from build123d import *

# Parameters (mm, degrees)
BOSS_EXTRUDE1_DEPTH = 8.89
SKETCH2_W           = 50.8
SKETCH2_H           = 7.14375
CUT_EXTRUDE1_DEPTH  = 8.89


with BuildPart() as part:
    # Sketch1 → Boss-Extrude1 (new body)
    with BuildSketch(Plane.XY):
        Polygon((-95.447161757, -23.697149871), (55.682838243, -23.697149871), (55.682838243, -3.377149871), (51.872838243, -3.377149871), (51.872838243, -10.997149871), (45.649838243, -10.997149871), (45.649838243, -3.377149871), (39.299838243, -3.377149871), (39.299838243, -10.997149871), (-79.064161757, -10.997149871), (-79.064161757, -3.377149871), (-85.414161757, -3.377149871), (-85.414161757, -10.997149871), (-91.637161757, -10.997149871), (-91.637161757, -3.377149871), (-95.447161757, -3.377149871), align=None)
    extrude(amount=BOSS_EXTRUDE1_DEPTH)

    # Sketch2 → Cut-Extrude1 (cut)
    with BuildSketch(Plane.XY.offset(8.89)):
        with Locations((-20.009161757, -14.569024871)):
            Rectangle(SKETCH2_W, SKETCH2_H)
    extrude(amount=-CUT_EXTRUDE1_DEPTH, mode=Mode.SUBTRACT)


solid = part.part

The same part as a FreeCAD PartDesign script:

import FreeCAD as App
import Part
import Sketcher

V = App.Vector
Q = App.Units.Quantity

doc = App.newDocument("Part")
params = doc.addObject("Spreadsheet::Sheet", "Params")
for row, (alias, value) in enumerate([
    ("sketch1_height", "0.8 in"),
    ("sketch1_height2", "0.3 in"),
    ("sketch1_width", "5.95 in"),
    ("sketch1_width2", "0.15 in"),
    ("sketch1_width3", "0.25 in"),
    ("pad1_length", "0.35 in"),
    ("sketch2_width", "2 in"),
    ("sketch2_height", "0.28125 in"),
    ("pocket1_length", "0.35 in"),
], start=1):
    params.set(f"A{row}", alias)
    params.set(f"B{row}", "=" + value)
    params.setAlias(f"B{row}", alias)

body = doc.addObject("PartDesign::Body", "Body")

# Sketch on XY plane
sketch1 = doc.addObject("Sketcher::SketchObject", "Sketch")
body.addObject(sketch1)
sketch1.AttachmentSupport = (doc.XY_Plane, [""])
sketch1.MapMode = "FlatFace"
sketch1.addGeometry([
    Part.LineSegment(V(-95.4, -23.7, 0), V(55.7, -23.7, 0)),  # 0
    Part.LineSegment(V(55.7, -23.7, 0), V(55.7, -3.4, 0)),  # 1
    Part.LineSegment(V(55.7, -3.4, 0), V(51.9, -3.4, 0)),  # 2
    Part.LineSegment(V(51.9, -3.4, 0), V(51.9, -11, 0)),  # 3
    Part.LineSegment(V(51.9, -11, 0), V(45.6, -11, 0)),  # 4
    Part.LineSegment(V(45.6, -11, 0), V(45.6, -3.4, 0)),  # 5
    Part.LineSegment(V(45.6, -3.4, 0), V(39.3, -3.4, 0)),  # 6
    Part.LineSegment(V(39.3, -3.4, 0), V(39.3, -11, 0)),  # 7
    Part.LineSegment(V(39.3, -11, 0), V(-79.1, -11, 0)),  # 8
    Part.LineSegment(V(-79.1, -11, 0), V(-79.1, -3.4, 0)),  # 9
    Part.LineSegment(V(-79.1, -3.4, 0), V(-85.4, -3.4, 0)),  # 10
    Part.LineSegment(V(-85.4, -3.4, 0), V(-85.4, -11, 0)),  # 11
    Part.LineSegment(V(-85.4, -11, 0), V(-91.6, -11, 0)),  # 12
    Part.LineSegment(V(-91.6, -11, 0), V(-91.6, -3.4, 0)),  # 13
    Part.LineSegment(V(-91.6, -3.4, 0), V(-95.4, -3.4, 0)),  # 14
    Part.LineSegment(V(-95.4, -3.4, 0), V(-95.4, -23.7, 0)),  # 15
], False)
sketch1.addConstraint([
    Sketcher.Constraint("Coincident", 0, 2, 1, 1),
    Sketcher.Constraint("Coincident", 1, 2, 2, 1),
    Sketcher.Constraint("Coincident", 2, 2, 3, 1),
    Sketcher.Constraint("Coincident", 3, 2, 4, 1),
    Sketcher.Constraint("Coincident", 4, 2, 5, 1),
    Sketcher.Constraint("Coincident", 5, 2, 6, 1),
    Sketcher.Constraint("Coincident", 6, 2, 7, 1),
    Sketcher.Constraint("Coincident", 7, 2, 8, 1),
    Sketcher.Constraint("Coincident", 8, 2, 9, 1),
    Sketcher.Constraint("Coincident", 9, 2, 10, 1),
    Sketcher.Constraint("Coincident", 10, 2, 11, 1),
    Sketcher.Constraint("Coincident", 11, 2, 12, 1),
    Sketcher.Constraint("Coincident", 12, 2, 13, 1),
    Sketcher.Constraint("Coincident", 13, 2, 14, 1),
    Sketcher.Constraint("Coincident", 14, 2, 15, 1),
    Sketcher.Constraint("Coincident", 15, 2, 0, 1),
    Sketcher.Constraint("Horizontal", 0),
    Sketcher.Constraint("Vertical", 1),
    Sketcher.Constraint("Horizontal", 2),
    Sketcher.Constraint("Vertical", 3),
    Sketcher.Constraint("Horizontal", 4),
    Sketcher.Constraint("Vertical", 5),
    Sketcher.Constraint("Horizontal", 6),
    Sketcher.Constraint("Vertical", 7),
    Sketcher.Constraint("Horizontal", 8),
    Sketcher.Constraint("Vertical", 9),
    Sketcher.Constraint("Horizontal", 10),
    Sketcher.Constraint("Vertical", 11),
    Sketcher.Constraint("Horizontal", 12),
    Sketcher.Constraint("Vertical", 13),
    Sketcher.Constraint("Horizontal", 14),
    Sketcher.Constraint("Vertical", 15),
    Sketcher.Constraint("Horizontal", 2, 2, 5, 2),
    Sketcher.Constraint("Horizontal", 4, 2, 7, 2),
    Sketcher.Constraint("Horizontal", 6, 2, 9, 2),
    Sketcher.Constraint("Horizontal", 8, 2, 11, 2),
    Sketcher.Constraint("Horizontal", 10, 2, 13, 2),
    Sketcher.Constraint("Equal", 6, 10),
    Sketcher.Constraint("Equal", 4, 12),
    Sketcher.Constraint("Equal", 2, 14),
    Sketcher.Constraint("DistanceY", 1, 1, 1, 2, Q("0.8 in")),
    Sketcher.Constraint("DistanceY", 3, 2, 3, 1, Q("0.3 in")),
    Sketcher.Constraint("DistanceX", 0, 1, 0, 2, Q("5.95 in")),
    Sketcher.Constraint("DistanceX", 2, 2, 2, 1, Q("0.15 in")),
    Sketcher.Constraint("DistanceX", 6, 2, 6, 1, Q("0.25 in")),
    Sketcher.Constraint("DistanceX", 8, 2, 8, 1, Q("4.66 in")),
    Sketcher.Constraint("DistanceX", -1, 1, 0, 2, Q("55.682838 mm")),
    Sketcher.Constraint("DistanceY", 0, 2, -1, 1, Q("23.69715 mm")),
])
sketch1.setExpression("Constraints[40]", "Params.sketch1_height")
sketch1.setExpression("Constraints[41]", "Params.sketch1_height2")
sketch1.setExpression("Constraints[42]", "Params.sketch1_width")
sketch1.setExpression("Constraints[43]", "Params.sketch1_width2")
sketch1.setExpression("Constraints[44]", "Params.sketch1_width3")
pad1 = doc.addObject("PartDesign::Pad", "Pad")
body.addObject(pad1)
pad1.Profile = sketch1
pad1.setExpression("Length", "Params.pad1_length")

# Sketch on XY plane
sketch2 = doc.addObject("Sketcher::SketchObject", "Sketch001")
body.addObject(sketch2)
sketch2.AttachmentSupport = (doc.XY_Plane, [""])
sketch2.MapMode = "FlatFace"
sketch2.AttachmentOffset = App.Placement(V(0, 0, 0.35 * 25.4), App.Rotation())
sketch2.addGeometry([
    Part.LineSegment(V(-45, -11, 0), V(-45, -18, 0)),
    Part.LineSegment(V(-45, -18, 0), V(5, -18, 0)),
    Part.LineSegment(V(5, -18, 0), V(5, -11, 0)),
    Part.LineSegment(V(5, -11, 0), V(-45, -11, 0)),
], False)
sketch2.addConstraint([
    Sketcher.Constraint("Coincident", 0, 2, 1, 1),
    Sketcher.Constraint("Coincident", 1, 2, 2, 1),
    Sketcher.Constraint("Coincident", 2, 2, 3, 1),
    Sketcher.Constraint("Coincident", 3, 2, 0, 1),
    Sketcher.Constraint("Vertical", 0),
    Sketcher.Constraint("Horizontal", 1),
    Sketcher.Constraint("Vertical", 2),
    Sketcher.Constraint("Horizontal", 3),
    Sketcher.Constraint("DistanceX", 1, 1, 1, 2, Q("2 in")),
    Sketcher.Constraint("DistanceY", 0, 2, 0, 1, Q("0.28125 in")),
    Sketcher.Constraint("DistanceY", 0, 2, -1, 1, Q("18.1409 mm")),
    Sketcher.Constraint("DistanceX", 0, 2, -1, 1, Q("45.409162 mm")),
])
sketch2.setExpression("Constraints[8]", "Params.sketch2_width")
sketch2.setExpression("Constraints[9]", "Params.sketch2_height")
pocket1 = doc.addObject("PartDesign::Pocket", "Pocket")
body.addObject(pocket1)
pocket1.Profile = sketch2
pocket1.setExpression("Length", "Params.pocket1_length")

doc.recompute()
